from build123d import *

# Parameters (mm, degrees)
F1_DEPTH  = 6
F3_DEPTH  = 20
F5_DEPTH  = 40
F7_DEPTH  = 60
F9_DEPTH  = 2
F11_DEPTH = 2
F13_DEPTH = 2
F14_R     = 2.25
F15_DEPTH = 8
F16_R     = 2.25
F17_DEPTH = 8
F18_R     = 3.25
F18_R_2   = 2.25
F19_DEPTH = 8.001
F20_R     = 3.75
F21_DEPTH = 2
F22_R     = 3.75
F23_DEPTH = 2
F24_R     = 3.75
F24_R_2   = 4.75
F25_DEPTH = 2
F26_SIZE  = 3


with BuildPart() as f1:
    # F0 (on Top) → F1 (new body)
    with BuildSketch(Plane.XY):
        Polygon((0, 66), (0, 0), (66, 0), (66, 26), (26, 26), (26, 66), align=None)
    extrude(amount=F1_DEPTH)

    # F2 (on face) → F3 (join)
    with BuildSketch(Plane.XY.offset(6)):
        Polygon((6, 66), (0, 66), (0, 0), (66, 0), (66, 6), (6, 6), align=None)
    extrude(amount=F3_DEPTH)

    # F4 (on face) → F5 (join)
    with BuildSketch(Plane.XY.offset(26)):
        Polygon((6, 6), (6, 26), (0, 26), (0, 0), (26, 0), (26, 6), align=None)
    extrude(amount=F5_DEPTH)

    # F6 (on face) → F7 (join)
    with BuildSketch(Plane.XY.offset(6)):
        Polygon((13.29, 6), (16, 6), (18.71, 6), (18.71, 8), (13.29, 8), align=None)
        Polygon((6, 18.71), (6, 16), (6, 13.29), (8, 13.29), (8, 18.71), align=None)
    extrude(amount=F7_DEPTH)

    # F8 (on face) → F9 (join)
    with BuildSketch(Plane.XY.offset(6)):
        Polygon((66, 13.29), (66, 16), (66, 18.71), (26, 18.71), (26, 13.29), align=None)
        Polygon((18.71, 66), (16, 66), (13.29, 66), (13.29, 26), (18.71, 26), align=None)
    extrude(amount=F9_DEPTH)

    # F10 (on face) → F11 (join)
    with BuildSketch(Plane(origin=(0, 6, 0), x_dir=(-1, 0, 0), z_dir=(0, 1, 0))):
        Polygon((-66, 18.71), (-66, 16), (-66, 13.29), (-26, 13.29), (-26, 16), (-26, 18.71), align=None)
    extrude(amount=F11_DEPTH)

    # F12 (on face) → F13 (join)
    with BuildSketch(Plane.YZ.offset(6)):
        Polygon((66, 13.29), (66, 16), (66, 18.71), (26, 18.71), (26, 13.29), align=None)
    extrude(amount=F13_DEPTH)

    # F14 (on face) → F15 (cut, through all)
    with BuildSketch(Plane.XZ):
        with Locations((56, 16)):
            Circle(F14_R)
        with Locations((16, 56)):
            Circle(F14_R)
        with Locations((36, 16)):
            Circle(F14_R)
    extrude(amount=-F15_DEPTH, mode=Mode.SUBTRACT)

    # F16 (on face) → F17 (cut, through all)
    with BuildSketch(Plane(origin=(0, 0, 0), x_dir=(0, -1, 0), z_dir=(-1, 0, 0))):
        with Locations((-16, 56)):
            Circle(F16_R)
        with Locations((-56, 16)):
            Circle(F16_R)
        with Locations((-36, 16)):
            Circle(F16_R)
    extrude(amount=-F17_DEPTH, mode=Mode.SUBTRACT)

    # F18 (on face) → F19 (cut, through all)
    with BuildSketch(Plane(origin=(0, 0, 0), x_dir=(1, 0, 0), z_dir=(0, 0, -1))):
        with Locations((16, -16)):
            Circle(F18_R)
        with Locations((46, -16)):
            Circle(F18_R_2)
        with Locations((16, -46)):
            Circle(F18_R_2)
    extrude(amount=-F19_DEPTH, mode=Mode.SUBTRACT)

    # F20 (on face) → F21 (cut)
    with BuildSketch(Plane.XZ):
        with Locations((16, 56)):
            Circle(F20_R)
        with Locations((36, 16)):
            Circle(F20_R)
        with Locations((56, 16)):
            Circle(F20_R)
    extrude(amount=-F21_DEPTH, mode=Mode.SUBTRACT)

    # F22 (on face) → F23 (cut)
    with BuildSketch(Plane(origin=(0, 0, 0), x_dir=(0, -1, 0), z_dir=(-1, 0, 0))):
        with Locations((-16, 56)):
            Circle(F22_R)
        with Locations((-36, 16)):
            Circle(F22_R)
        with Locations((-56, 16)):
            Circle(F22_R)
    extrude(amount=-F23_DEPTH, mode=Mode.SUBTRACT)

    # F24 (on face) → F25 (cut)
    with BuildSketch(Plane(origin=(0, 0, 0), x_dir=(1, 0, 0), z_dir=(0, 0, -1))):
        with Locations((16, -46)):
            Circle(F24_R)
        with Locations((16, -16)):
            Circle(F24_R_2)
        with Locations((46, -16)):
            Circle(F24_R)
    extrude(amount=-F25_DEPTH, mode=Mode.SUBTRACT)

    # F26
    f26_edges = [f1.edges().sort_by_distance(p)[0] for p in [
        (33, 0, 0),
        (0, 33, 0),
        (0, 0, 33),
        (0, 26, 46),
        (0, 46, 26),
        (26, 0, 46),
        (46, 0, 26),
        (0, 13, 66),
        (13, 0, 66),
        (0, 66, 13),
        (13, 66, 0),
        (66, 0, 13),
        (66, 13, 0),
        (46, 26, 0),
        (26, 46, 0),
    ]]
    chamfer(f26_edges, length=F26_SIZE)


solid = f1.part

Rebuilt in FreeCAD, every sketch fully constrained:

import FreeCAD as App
import Part
import Sketcher
from FreeCAD import Vector
Q = App.Units.Quantity


def edges_at(feature, points):
    """Names of the edges that pass closest to the given points."""
    edges = feature.Shape.Edges
    near = lambda p: min(range(len(edges)), key=lambda i: edges[i].distToShape(Part.Vertex(*p))[0])
    return sorted({f"Edge{near(p) + 1}" for p in points})

doc = App.newDocument("Part")
body = doc.addObject("PartDesign::Body", "Body")

# Sketch on XY plane
sketch1 = body.newObject("Sketcher::SketchObject", "Sketch")
sketch1.AttachmentSupport = (doc.getObject("XY_Plane"), [""])
sketch1.MapMode = "FlatFace"
sketch1.addGeometry([
    Part.LineSegment(Vector(0, 66, 0), Vector(0, 0, 0)),  # 0
    Part.LineSegment(Vector(0, 0, 0), Vector(66, 0, 0)),  # 1
    Part.LineSegment(Vector(66, 0, 0), Vector(66, 26, 0)),  # 2
    Part.LineSegment(Vector(66, 26, 0), Vector(26, 26, 0)),  # 3
    Part.LineSegment(Vector(26, 26, 0), Vector(26, 66, 0)),  # 4
    Part.LineSegment(Vector(26, 66, 0), Vector(0, 66, 0)),  # 5
], False)
sketch1.addConstraint([
    Sketcher.Constraint("Coincident", 0, 2, 1, 1),
    Sketcher.Constraint("Coincident", 1, 2, 2, 1),
    Sketcher.Constraint("Coincident", 2, 2, 3, 1),
    Sketcher.Constraint("Coincident", 3, 2, 4, 1),
    Sketcher.Constraint("Coincident", 4, 2, 5, 1),
    Sketcher.Constraint("Coincident", 5, 2, 0, 1),
    Sketcher.Constraint("Vertical", 0),
    Sketcher.Constraint("Horizontal", 1),
    Sketcher.Constraint("Vertical", 2),
    Sketcher.Constraint("Horizontal", 3),
    Sketcher.Constraint("Vertical", 4),
    Sketcher.Constraint("Horizontal", 5),
    Sketcher.Constraint("Coincident", 0, 2, -1, 1),
    Sketcher.Constraint("Equal", 1, 0),
    Sketcher.Constraint("Equal", 5, 2),
    Sketcher.Constraint("DistanceX", 1, 1, 1, 2, Q("66 mm")),
    Sketcher.Constraint("DistanceX", 3, 2, 3, 1, Q("40 mm")),
])
pad1 = body.newObject("PartDesign::Pad", "Pad")
pad1.Profile = sketch1
pad1.Length = 6

# Sketch on XY plane
sketch2 = body.newObject("Sketcher::SketchObject", "Sketch001")
sketch2.AttachmentSupport = (doc.getObject("XY_Plane"), [""])
sketch2.MapMode = "FlatFace"
sketch2.AttachmentOffset = App.Placement(Vector(0, 0, 6), App.Rotation())
sketch2.addGeometry([
    Part.LineSegment(Vector(6, 66, 0), Vector(0, 66, 0)),  # 0
    Part.LineSegment(Vector(0, 66, 0), Vector(0, 0, 0)),  # 1
    Part.LineSegment(Vector(0, 0, 0), Vector(66, 0, 0)),  # 2
    Part.LineSegment(Vector(66, 0, 0), Vector(66, 6, 0)),  # 3
    Part.LineSegment(Vector(66, 6, 0), Vector(6, 6, 0)),  # 4
    Part.LineSegment(Vector(6, 6, 0), Vector(6, 66, 0)),  # 5
], False)
sketch2.addConstraint([
    Sketcher.Constraint("Coincident", 0, 2, 1, 1),
    Sketcher.Constraint("Coincident", 1, 2, 2, 1),
    Sketcher.Constraint("Coincident", 2, 2, 3, 1),
    Sketcher.Constraint("Coincident", 3, 2, 4, 1),
    Sketcher.Constraint("Coincident", 4, 2, 5, 1),
    Sketcher.Constraint("Coincident", 5, 2, 0, 1),
    Sketcher.Constraint("Horizontal", 0),
    Sketcher.Constraint("Vertical", 1),
    Sketcher.Constraint("Horizontal", 2),
    Sketcher.Constraint("Vertical", 3),
    Sketcher.Constraint("Horizontal", 4),
    Sketcher.Constraint("Vertical", 5),
    Sketcher.Constraint("Coincident", 1, 2, -1, 1),
    Sketcher.Constraint("Equal", 2, 1),
    Sketcher.Constraint("Equal", 0, 3),
    Sketcher.Constraint("DistanceX", 0, 2, 0, 1, Q("6 mm")),
    Sketcher.Constraint("DistanceX", 2, 1, 2, 2, Q("66 mm")),
])
pad2 = body.newObject("PartDesign::Pad", "Pad001")
pad2.Profile = sketch2
pad2.Length = 20

# Sketch on XY plane
sketch3 = body.newObject("Sketcher::SketchObject", "Sketch002")
sketch3.AttachmentSupport = (doc.getObject("XY_Plane"), [""])
sketch3.MapMode = "FlatFace"
sketch3.AttachmentOffset = App.Placement(Vector(0, 0, 26), App.Rotation())
sketch3.addGeometry([
    Part.LineSegment(Vector(6, 6, 0), Vector(6, 26, 0)),  # 0
    Part.LineSegment(Vector(6, 26, 0), Vector(0, 26, 0)),  # 1
    Part.LineSegment(Vector(0, 26, 0), Vector(0, 0, 0)),  # 2
    Part.LineSegment(Vector(0, 0, 0), Vector(26, 0, 0)),  # 3
    Part.LineSegment(Vector(26, 0, 0), Vector(26, 6, 0)),  # 4
    Part.LineSegment(Vector(26, 6, 0), Vector(6, 6, 0)),  # 5
], False)
sketch3.addConstraint([
    Sketcher.Constraint("Coincident", 0, 2, 1, 1),
    Sketcher.Constraint("Coincident", 1, 2, 2, 1),
    Sketcher.Constraint("Coincident", 2, 2, 3, 1),
    Sketcher.Constraint("Coincident", 3, 2, 4, 1),
    Sketcher.Constraint("Coincident", 4, 2, 5, 1),
    Sketcher.Constraint("Coincident", 5, 2, 0, 1),
    Sketcher.Constraint("Vertical", 0),
    Sketcher.Constraint("Horizontal", 1),
    Sketcher.Constraint("Vertical", 2),
    Sketcher.Constraint("Horizontal", 3),
    Sketcher.Constraint("Vertical", 4),
    Sketcher.Constraint("Horizontal", 5),
    Sketcher.Constraint("Coincident", 2, 2, -1, 1),
    Sketcher.Constraint("Equal", 5, 0),
    Sketcher.Constraint("Equal", 3, 2),
    Sketcher.Constraint("DistanceX", 1, 2, 1, 1, Q("6 mm")),
    Sketcher.Constraint("DistanceX", 3, 1, 3, 2, Q("26 mm")),
])
pad3 = body.newObject("PartDesign::Pad", "Pad002")
pad3.Profile = sketch3
pad3.Length = 40

# Sketch on XY plane
sketch4 = body.newObject("Sketcher::SketchObject", "Sketch003")
sketch4.AttachmentSupport = (doc.getObject("XY_Plane"), [""])
sketch4.MapMode = "FlatFace"
sketch4.AttachmentOffset = App.Placement(Vector(0, 0, 6), App.Rotation())
sketch4.addGeometry([
    Part.LineSegment(Vector(13.3, 6, 0), Vector(18.7, 6, 0)),  # 0
    Part.LineSegment(Vector(18.7, 6, 0), Vector(18.7, 8, 0)),  # 1
    Part.LineSegment(Vector(18.7, 8, 0), Vector(13.3, 8, 0)),  # 2
    Part.LineSegment(Vector(13.3, 8, 0), Vector(13.3, 6, 0)),  # 3
    Part.LineSegment(Vector(6, 18.7, 0), Vector(6, 13.3, 0)),  # 4
    Part.LineSegment(Vector(6, 13.3, 0), Vector(8, 13.3, 0)),  # 5
    Part.LineSegment(Vector(8, 13.3, 0), Vector(8, 18.7, 0)),  # 6
    Part.LineSegment(Vector(8, 18.7, 0), Vector(6, 18.7, 0)),  # 7
], False)
sketch4.addConstraint([
    Sketcher.Constraint("Coincident", 0, 2, 1, 1),
    Sketcher.Constraint("Coincident", 1, 2, 2, 1),
    Sketcher.Constraint("Coincident", 2, 2, 3, 1),
    Sketcher.Constraint("Coincident", 3, 2, 0, 1),
    Sketcher.Constraint("Coincident", 4, 2, 5, 1),
    Sketcher.Constraint("Coincident", 5, 2, 6, 1),
    Sketcher.Constraint("Coincident", 6, 2, 7, 1),
    Sketcher.Constraint("Coincident", 7, 2, 4, 1),
    Sketcher.Constraint("Horizontal", 0),
    Sketcher.Constraint("Vertical", 1),
    Sketcher.Constraint("Horizontal", 2),
    Sketcher.Constraint("Vertical", 3),
    Sketcher.Constraint("Vertical", 4),
    Sketcher.Constraint("Horizontal", 5),
    Sketcher.Constraint("Vertical", 6),
    Sketcher.Constraint("Horizontal", 7),
    Sketcher.Constraint("Equal", 7, 1),
    Sketcher.Constraint("Equal", 2, 4),
    Sketcher.Constraint("DistanceX", 5, 1, 5, 2, Q("2 mm")),
    Sketcher.Constraint("DistanceY", -1, 1, 0, 2, Q("6 mm")),
    Sketcher.Constraint("DistanceX", -1, 1, 4, 2, Q("6 mm")),
    Sketcher.Constraint("DistanceX", 0, 1, 0, 2, Q("5.42 mm")),
    Sketcher.Constraint("DistanceX", -1, 1, 0, 2, Q("18.71 mm")),
    Sketcher.Constraint("DistanceY", -1, 1, 4, 2, Q("13.29 mm")),
])
pad4 = body.newObject("PartDesign::Pad", "Pad003")
pad4.Profile = sketch4
pad4.Length = 60

# Sketch on XY plane
sketch5 = body.newObject("Sketcher::SketchObject", "Sketch004")
sketch5.AttachmentSupport = (doc.getObject("XY_Plane"), [""])
sketch5.MapMode = "FlatFace"
sketch5.AttachmentOffset = App.Placement(Vector(0, 0, 6), App.Rotation())
sketch5.addGeometry([
    Part.LineSegment(Vector(66, 13, 0), Vector(66, 19, 0)),  # 0
    Part.LineSegment(Vector(66, 19, 0), Vector(26, 19, 0)),  # 1
    Part.LineSegment(Vector(26, 19, 0), Vector(26, 13, 0)),  # 2
    Part.LineSegment(Vector(26, 13, 0), Vector(66, 13, 0)),  # 3
    Part.LineSegment(Vector(19, 66, 0), Vector(13, 66, 0)),  # 4
    Part.LineSegment(Vector(13, 66, 0), Vector(13, 26, 0)),  # 5
    Part.LineSegment(Vector(13, 26, 0), Vector(19, 26, 0)),  # 6
    Part.LineSegment(Vector(19, 26, 0), Vector(19, 66, 0)),  # 7
], False)
sketch5.addConstraint([
    Sketcher.Constraint("Coincident", 0, 2, 1, 1),
    Sketcher.Constraint("Coincident", 1, 2, 2, 1),
    Sketcher.Constraint("Coincident", 2, 2, 3, 1),
    Sketcher.Constraint("Coincident", 3, 2, 0, 1),
    Sketcher.Constraint("Coincident", 4, 2, 5, 1),
    Sketcher.Constraint("Coincident", 5, 2, 6, 1),
    Sketcher.Constraint("Coincident", 6, 2, 7, 1),
    Sketcher.Constraint("Coincident", 7, 2, 4, 1),
    Sketcher.Constraint("Vertical", 0),
    Sketcher.Constraint("Horizontal", 1),
    Sketcher.Constraint("Vertical", 2),
    Sketcher.Constraint("Horizontal", 3),
    Sketcher.Constraint("Horizontal", 4),
    Sketcher.Constraint("Vertical", 5),
    Sketcher.Constraint("Horizontal", 6),
    Sketcher.Constraint("Vertical", 7),
    Sketcher.Constraint("Equal", 6, 0),
    Sketcher.Constraint("Equal", 3, 5),
    Sketcher.Constraint("DistanceX", 1, 2, 1, 1, Q("40 mm")),
    Sketcher.Constraint("DistanceX", -1, 1, 0, 2, Q("66 mm")),
    Sketcher.Constraint("DistanceY", -1, 1, 4, 2, Q("66 mm")),
    Sketcher.Constraint("DistanceX", 4, 2, 4, 1, Q("5.42 mm")),
    Sketcher.Constraint("DistanceY", -1, 1, 0, 2, Q("18.71 mm")),
    Sketcher.Constraint("DistanceX", -1, 1, 4, 2, Q("13.29 mm")),
])
pad5 = body.newObject("PartDesign::Pad", "Pad004")
pad5.Profile = sketch5
pad5.Length = 2

# Sketch on XZ plane
sketch6 = body.newObject("Sketcher::SketchObject", "Sketch005")
sketch6.AttachmentSupport = (doc.getObject("XZ_Plane"), [""])
sketch6.MapMode = "FlatFace"
sketch6.AttachmentOffset = App.Placement(Vector(0, 0, -6), App.Rotation())
sketch6.addGeometry([
    Part.LineSegment(Vector(66, 19, 0), Vector(66, 13, 0)),
    Part.LineSegment(Vector(66, 13, 0), Vector(26, 13, 0)),
    Part.LineSegment(Vector(26, 13, 0), Vector(26, 19, 0)),
    Part.LineSegment(Vector(26, 19, 0), Vector(66, 19, 0)),
], False)
sketch6.addConstraint([
    Sketcher.Constraint("Coincident", 0, 2, 1, 1),
    Sketcher.Constraint("Coincident", 1, 2, 2, 1),
    Sketcher.Constraint("Coincident", 2, 2, 3, 1),
    Sketcher.Constraint("Coincident", 3, 2, 0, 1),
    Sketcher.Constraint("Vertical", 0),
    Sketcher.Constraint("Horizontal", 1),
    Sketcher.Constraint("Vertical", 2),
    Sketcher.Constraint("Horizontal", 3),
    Sketcher.Constraint("DistanceX", 1, 2, 1, 1, Q("40 mm")),
    Sketcher.Constraint("DistanceX", -1, 1, 0, 2, Q("66 mm")),
    Sketcher.Constraint("DistanceY", 0, 2, 0, 1, Q("5.42 mm")),
    Sketcher.Constraint("DistanceY", -1, 1, 0, 2, Q("13.29 mm")),
])
pad6 = body.newObject("PartDesign::Pad", "Pad005")
pad6.Profile = sketch6
pad6.Length = 2
pad6.Reversed = True

# Sketch on YZ plane
sketch7 = body.newObject("Sketcher::SketchObject", "Sketch006")
sketch7.AttachmentSupport = (doc.getObject("YZ_Plane"), [""])
sketch7.MapMode = "FlatFace"
sketch7.AttachmentOffset = App.Placement(Vector(0, 0, 6), App.Rotation())
sketch7.addGeometry([
    Part.LineSegment(Vector(66, 13, 0), Vector(66, 19, 0)),
    Part.LineSegment(Vector(66, 19, 0), Vector(26, 19, 0)),
    Part.LineSegment(Vector(26, 19, 0), Vector(26, 13, 0)),
    Part.LineSegment(Vector(26, 13, 0), Vector(66, 13, 0)),
], False)
sketch7.addConstraint([
    Sketcher.Constraint("Coincident", 0, 2, 1, 1),
    Sketcher.Constraint("Coincident", 1, 2, 2, 1),
    Sketcher.Constraint("Coincident", 2, 2, 3, 1),
    Sketcher.Constraint("Coincident", 3, 2, 0, 1),
    Sketcher.Constraint("Vertical", 0),
    Sketcher.Constraint("Horizontal", 1),
    Sketcher.Constraint("Vertical", 2),
    Sketcher.Constraint("Horizontal", 3),
    Sketcher.Constraint("DistanceX", 1, 2, 1, 1, Q("40 mm")),
    Sketcher.Constraint("DistanceX", -1, 1, 0, 2, Q("66 mm")),
    Sketcher.Constraint("DistanceY", 0, 1, 0, 2, Q("5.42 mm")),
    Sketcher.Constraint("DistanceY", -1, 1, 0, 2, Q("18.71 mm")),
])
pad7 = body.newObject("PartDesign::Pad", "Pad006")
pad7.Profile = sketch7
pad7.Length = 2

# Sketch on XZ plane
sketch8 = body.newObject("Sketcher::SketchObject", "Sketch007")
sketch8.AttachmentSupport = (doc.getObject("XZ_Plane"), [""])
sketch8.MapMode = "FlatFace"
sketch8.addGeometry([
    Part.Circle(Vector(56, 16, 0), Vector(0, 0, 1), 2.2),
    Part.Circle(Vector(16, 56, 0), Vector(0, 0, 1), 2.2),
    Part.Circle(Vector(36, 16, 0), Vector(0, 0, 1), 2.2),
], False)
sketch8.addConstraint([
    Sketcher.Constraint("Equal", 0, 1),
    Sketcher.Constraint("Equal", 1, 2),
    Sketcher.Constraint("Horizontal", 0, 3, 2, 3),
    Sketcher.Constraint("Diameter", 0, Q("4.5 mm")),
    Sketcher.Constraint("DistanceX", -1, 1, 0, 3, Q("56 mm")),
    Sketcher.Constraint("DistanceY", -1, 1, 0, 3, Q("16 mm")),
    Sketcher.Constraint("DistanceX", -1, 1, 1, 3, Q("16 mm")),
    Sketcher.Constraint("DistanceY", -1, 1, 1, 3, Q("56 mm")),
    Sketcher.Constraint("DistanceX", -1, 1, 2, 3, Q("36 mm")),
])
pocket1 = body.newObject("PartDesign::Pocket", "Pocket")
pocket1.Profile = sketch8
pocket1.Type = "ThroughAll"

# Sketch on YZ plane
sketch9 = body.newObject("Sketcher::SketchObject", "Sketch008")
sketch9.AttachmentSupport = (doc.getObject("YZ_Plane"), [""])
sketch9.MapMode = "FlatFace"
sketch9.addGeometry([
    Part.Circle(Vector(16, 56, 0), Vector(0, 0, 1), 2.2),
    Part.Circle(Vector(56, 16, 0), Vector(0, 0, 1), 2.2),
    Part.Circle(Vector(36, 16, 0), Vector(0, 0, 1), 2.2),
], False)
sketch9.addConstraint([
    Sketcher.Constraint("Equal", 0, 1),
    Sketcher.Constraint("Equal", 1, 2),
    Sketcher.Constraint("Horizontal", 1, 3, 2, 3),
    Sketcher.Constraint("Diameter", 0, Q("4.5 mm")),
    Sketcher.Constraint("DistanceX", -1, 1, 0, 3, Q("16 mm")),
    Sketcher.Constraint("DistanceY", -1, 1, 0, 3, Q("56 mm")),
    Sketcher.Constraint("DistanceX", -1, 1, 1, 3, Q("56 mm")),
    Sketcher.Constraint("DistanceY", -1, 1, 1, 3, Q("16 mm")),
    Sketcher.Constraint("DistanceX", -1, 1, 2, 3, Q("36 mm")),
])
pocket2 = body.newObject("PartDesign::Pocket", "Pocket001")
pocket2.Profile = sketch9
pocket2.Type = "ThroughAll"
pocket2.Reversed = True

# Sketch on XY plane
sketch10 = body.newObject("Sketcher::SketchObject", "Sketch009")
sketch10.AttachmentSupport = (doc.getObject("XY_Plane"), [""])
sketch10.MapMode = "FlatFace"
sketch10.addGeometry([
    Part.Circle(Vector(16, 16, 0), Vector(0, 0, 1), 3.2),
    Part.Circle(Vector(46, 16, 0), Vector(0, 0, 1), 2.2),
    Part.Circle(Vector(16, 46, 0), Vector(0, 0, 1), 2.2),
], False)
sketch10.addConstraint([
    Sketcher.Constraint("Equal", 1, 2),
    Sketcher.Constraint("Horizontal", 0, 3, 1, 3),
    Sketcher.Constraint("Vertical", 0, 3, 2, 3),
    Sketcher.Constraint("Diameter", 0, Q("6.5 mm")),
    Sketcher.Constraint("Diameter", 1, Q("4.5 mm")),
    Sketcher.Constraint("DistanceX", -1, 1, 0, 3, Q("16 mm")),
    Sketcher.Constraint("DistanceY", -1, 1, 0, 3, Q("16 mm")),
    Sketcher.Constraint("DistanceX", -1, 1, 1, 3, Q("46 mm")),
    Sketcher.Constraint("DistanceY", -1, 1, 2, 3, Q("46 mm")),
])
pocket3 = body.newObject("PartDesign::Pocket", "Pocket002")
pocket3.Profile = sketch10
pocket3.Type = "ThroughAll"
pocket3.Reversed = True

# Sketch on XZ plane
sketch11 = body.newObject("Sketcher::SketchObject", "Sketch010")
sketch11.AttachmentSupport = (doc.getObject("XZ_Plane"), [""])
sketch11.MapMode = "FlatFace"
sketch11.addGeometry([
    Part.Circle(Vector(16, 56, 0), Vector(0, 0, 1), 3.8),
    Part.Circle(Vector(36, 16, 0), Vector(0, 0, 1), 3.8),
    Part.Circle(Vector(56, 16, 0), Vector(0, 0, 1), 3.8),
], False)
sketch11.addConstraint([
    Sketcher.Constraint("Equal", 0, 1),
    Sketcher.Constraint("Equal", 1, 2),
    Sketcher.Constraint("Horizontal", 1, 3, 2, 3),
    Sketcher.Constraint("Diameter", 0, Q("7.5 mm")),
    Sketcher.Constraint("DistanceX", -1, 1, 0, 3, Q("16 mm")),
    Sketcher.Constraint("DistanceY", -1, 1, 0, 3, Q("56 mm")),
    Sketcher.Constraint("DistanceX", -1, 1, 1, 3, Q("36 mm")),
    Sketcher.Constraint("DistanceY", -1, 1, 1, 3, Q("16 mm")),
    Sketcher.Constraint("DistanceX", -1, 1, 2, 3, Q("56 mm")),
])
pocket4 = body.newObject("PartDesign::Pocket", "Pocket003")
pocket4.Profile = sketch11
pocket4.Length = 2

# Sketch on YZ plane
sketch12 = body.newObject("Sketcher::SketchObject", "Sketch011")
sketch12.AttachmentSupport = (doc.getObject("YZ_Plane"), [""])
sketch12.MapMode = "FlatFace"
sketch12.addGeometry([
    Part.Circle(Vector(16, 56, 0), Vector(0, 0, 1), 3.8),
    Part.Circle(Vector(36, 16, 0), Vector(0, 0, 1), 3.8),
    Part.Circle(Vector(56, 16, 0), Vector(0, 0, 1), 3.8),
], False)
sketch12.addConstraint([
    Sketcher.Constraint("Equal", 0, 1),
    Sketcher.Constraint("Equal", 1, 2),
    Sketcher.Constraint("Horizontal", 1, 3, 2, 3),
    Sketcher.Constraint("Diameter", 0, Q("7.5 mm")),
    Sketcher.Constraint("DistanceX", -1, 1, 0, 3, Q("16 mm")),
    Sketcher.Constraint("DistanceY", -1, 1, 0, 3, Q("56 mm")),
    Sketcher.Constraint("DistanceX", -1, 1, 1, 3, Q("36 mm")),
    Sketcher.Constraint("DistanceY", -1, 1, 1, 3, Q("16 mm")),
    Sketcher.Constraint("DistanceX", -1, 1, 2, 3, Q("56 mm")),
])
pocket5 = body.newObject("PartDesign::Pocket", "Pocket004")
pocket5.Profile = sketch12
pocket5.Length = 2
pocket5.Reversed = True

# Sketch on XY plane
sketch13 = body.newObject("Sketcher::SketchObject", "Sketch012")
sketch13.AttachmentSupport = (doc.getObject("XY_Plane"), [""])
sketch13.MapMode = "FlatFace"
sketch13.addGeometry([
    Part.Circle(Vector(16, 46, 0), Vector(0, 0, 1), 3.8),
    Part.Circle(Vector(16, 16, 0), Vector(0, 0, 1), 4.8),
    Part.Circle(Vector(46, 16, 0), Vector(0, 0, 1), 3.8),
], False)
sketch13.addConstraint([
    Sketcher.Constraint("Equal", 0, 2),
    Sketcher.Constraint("Horizontal", 1, 3, 2, 3),
    Sketcher.Constraint("Vertical", 0, 3, 1, 3),
    Sketcher.Constraint("Diameter", 0, Q("7.5 mm")),
    Sketcher.Constraint("Diameter", 1, Q("9.5 mm")),
    Sketcher.Constraint("DistanceX", -1, 1, 0, 3, Q("16 mm")),
    Sketcher.Constraint("DistanceY", -1, 1, 0, 3, Q("46 mm")),
    Sketcher.Constraint("DistanceY", -1, 1, 1, 3, Q("16 mm")),
    Sketcher.Constraint("DistanceX", -1, 1, 2, 3, Q("46 mm")),
])
pocket6 = body.newObject("PartDesign::Pocket", "Pocket005")
pocket6.Profile = sketch13
pocket6.Length = 2
pocket6.Reversed = True
doc.recompute()

chamfer = body.newObject("PartDesign::Chamfer", "Chamfer")
chamfer.Base = (pocket6, edges_at(pocket6, [
    (33, 0, 0),
    (0, 33, 0),
    (0, 0, 33),
    (0, 26, 46),
    (0, 46, 26),
    (26, 0, 46),
    (46, 0, 26),
    (0, 13, 66),
    (13, 0, 66),
    (0, 66, 13),
    (13, 66, 0),
    (66, 0, 13),
    (66, 13, 0),
    (46, 26, 0),
    (26, 46, 0),
]))
chamfer.Size = 3

doc.recompute()
